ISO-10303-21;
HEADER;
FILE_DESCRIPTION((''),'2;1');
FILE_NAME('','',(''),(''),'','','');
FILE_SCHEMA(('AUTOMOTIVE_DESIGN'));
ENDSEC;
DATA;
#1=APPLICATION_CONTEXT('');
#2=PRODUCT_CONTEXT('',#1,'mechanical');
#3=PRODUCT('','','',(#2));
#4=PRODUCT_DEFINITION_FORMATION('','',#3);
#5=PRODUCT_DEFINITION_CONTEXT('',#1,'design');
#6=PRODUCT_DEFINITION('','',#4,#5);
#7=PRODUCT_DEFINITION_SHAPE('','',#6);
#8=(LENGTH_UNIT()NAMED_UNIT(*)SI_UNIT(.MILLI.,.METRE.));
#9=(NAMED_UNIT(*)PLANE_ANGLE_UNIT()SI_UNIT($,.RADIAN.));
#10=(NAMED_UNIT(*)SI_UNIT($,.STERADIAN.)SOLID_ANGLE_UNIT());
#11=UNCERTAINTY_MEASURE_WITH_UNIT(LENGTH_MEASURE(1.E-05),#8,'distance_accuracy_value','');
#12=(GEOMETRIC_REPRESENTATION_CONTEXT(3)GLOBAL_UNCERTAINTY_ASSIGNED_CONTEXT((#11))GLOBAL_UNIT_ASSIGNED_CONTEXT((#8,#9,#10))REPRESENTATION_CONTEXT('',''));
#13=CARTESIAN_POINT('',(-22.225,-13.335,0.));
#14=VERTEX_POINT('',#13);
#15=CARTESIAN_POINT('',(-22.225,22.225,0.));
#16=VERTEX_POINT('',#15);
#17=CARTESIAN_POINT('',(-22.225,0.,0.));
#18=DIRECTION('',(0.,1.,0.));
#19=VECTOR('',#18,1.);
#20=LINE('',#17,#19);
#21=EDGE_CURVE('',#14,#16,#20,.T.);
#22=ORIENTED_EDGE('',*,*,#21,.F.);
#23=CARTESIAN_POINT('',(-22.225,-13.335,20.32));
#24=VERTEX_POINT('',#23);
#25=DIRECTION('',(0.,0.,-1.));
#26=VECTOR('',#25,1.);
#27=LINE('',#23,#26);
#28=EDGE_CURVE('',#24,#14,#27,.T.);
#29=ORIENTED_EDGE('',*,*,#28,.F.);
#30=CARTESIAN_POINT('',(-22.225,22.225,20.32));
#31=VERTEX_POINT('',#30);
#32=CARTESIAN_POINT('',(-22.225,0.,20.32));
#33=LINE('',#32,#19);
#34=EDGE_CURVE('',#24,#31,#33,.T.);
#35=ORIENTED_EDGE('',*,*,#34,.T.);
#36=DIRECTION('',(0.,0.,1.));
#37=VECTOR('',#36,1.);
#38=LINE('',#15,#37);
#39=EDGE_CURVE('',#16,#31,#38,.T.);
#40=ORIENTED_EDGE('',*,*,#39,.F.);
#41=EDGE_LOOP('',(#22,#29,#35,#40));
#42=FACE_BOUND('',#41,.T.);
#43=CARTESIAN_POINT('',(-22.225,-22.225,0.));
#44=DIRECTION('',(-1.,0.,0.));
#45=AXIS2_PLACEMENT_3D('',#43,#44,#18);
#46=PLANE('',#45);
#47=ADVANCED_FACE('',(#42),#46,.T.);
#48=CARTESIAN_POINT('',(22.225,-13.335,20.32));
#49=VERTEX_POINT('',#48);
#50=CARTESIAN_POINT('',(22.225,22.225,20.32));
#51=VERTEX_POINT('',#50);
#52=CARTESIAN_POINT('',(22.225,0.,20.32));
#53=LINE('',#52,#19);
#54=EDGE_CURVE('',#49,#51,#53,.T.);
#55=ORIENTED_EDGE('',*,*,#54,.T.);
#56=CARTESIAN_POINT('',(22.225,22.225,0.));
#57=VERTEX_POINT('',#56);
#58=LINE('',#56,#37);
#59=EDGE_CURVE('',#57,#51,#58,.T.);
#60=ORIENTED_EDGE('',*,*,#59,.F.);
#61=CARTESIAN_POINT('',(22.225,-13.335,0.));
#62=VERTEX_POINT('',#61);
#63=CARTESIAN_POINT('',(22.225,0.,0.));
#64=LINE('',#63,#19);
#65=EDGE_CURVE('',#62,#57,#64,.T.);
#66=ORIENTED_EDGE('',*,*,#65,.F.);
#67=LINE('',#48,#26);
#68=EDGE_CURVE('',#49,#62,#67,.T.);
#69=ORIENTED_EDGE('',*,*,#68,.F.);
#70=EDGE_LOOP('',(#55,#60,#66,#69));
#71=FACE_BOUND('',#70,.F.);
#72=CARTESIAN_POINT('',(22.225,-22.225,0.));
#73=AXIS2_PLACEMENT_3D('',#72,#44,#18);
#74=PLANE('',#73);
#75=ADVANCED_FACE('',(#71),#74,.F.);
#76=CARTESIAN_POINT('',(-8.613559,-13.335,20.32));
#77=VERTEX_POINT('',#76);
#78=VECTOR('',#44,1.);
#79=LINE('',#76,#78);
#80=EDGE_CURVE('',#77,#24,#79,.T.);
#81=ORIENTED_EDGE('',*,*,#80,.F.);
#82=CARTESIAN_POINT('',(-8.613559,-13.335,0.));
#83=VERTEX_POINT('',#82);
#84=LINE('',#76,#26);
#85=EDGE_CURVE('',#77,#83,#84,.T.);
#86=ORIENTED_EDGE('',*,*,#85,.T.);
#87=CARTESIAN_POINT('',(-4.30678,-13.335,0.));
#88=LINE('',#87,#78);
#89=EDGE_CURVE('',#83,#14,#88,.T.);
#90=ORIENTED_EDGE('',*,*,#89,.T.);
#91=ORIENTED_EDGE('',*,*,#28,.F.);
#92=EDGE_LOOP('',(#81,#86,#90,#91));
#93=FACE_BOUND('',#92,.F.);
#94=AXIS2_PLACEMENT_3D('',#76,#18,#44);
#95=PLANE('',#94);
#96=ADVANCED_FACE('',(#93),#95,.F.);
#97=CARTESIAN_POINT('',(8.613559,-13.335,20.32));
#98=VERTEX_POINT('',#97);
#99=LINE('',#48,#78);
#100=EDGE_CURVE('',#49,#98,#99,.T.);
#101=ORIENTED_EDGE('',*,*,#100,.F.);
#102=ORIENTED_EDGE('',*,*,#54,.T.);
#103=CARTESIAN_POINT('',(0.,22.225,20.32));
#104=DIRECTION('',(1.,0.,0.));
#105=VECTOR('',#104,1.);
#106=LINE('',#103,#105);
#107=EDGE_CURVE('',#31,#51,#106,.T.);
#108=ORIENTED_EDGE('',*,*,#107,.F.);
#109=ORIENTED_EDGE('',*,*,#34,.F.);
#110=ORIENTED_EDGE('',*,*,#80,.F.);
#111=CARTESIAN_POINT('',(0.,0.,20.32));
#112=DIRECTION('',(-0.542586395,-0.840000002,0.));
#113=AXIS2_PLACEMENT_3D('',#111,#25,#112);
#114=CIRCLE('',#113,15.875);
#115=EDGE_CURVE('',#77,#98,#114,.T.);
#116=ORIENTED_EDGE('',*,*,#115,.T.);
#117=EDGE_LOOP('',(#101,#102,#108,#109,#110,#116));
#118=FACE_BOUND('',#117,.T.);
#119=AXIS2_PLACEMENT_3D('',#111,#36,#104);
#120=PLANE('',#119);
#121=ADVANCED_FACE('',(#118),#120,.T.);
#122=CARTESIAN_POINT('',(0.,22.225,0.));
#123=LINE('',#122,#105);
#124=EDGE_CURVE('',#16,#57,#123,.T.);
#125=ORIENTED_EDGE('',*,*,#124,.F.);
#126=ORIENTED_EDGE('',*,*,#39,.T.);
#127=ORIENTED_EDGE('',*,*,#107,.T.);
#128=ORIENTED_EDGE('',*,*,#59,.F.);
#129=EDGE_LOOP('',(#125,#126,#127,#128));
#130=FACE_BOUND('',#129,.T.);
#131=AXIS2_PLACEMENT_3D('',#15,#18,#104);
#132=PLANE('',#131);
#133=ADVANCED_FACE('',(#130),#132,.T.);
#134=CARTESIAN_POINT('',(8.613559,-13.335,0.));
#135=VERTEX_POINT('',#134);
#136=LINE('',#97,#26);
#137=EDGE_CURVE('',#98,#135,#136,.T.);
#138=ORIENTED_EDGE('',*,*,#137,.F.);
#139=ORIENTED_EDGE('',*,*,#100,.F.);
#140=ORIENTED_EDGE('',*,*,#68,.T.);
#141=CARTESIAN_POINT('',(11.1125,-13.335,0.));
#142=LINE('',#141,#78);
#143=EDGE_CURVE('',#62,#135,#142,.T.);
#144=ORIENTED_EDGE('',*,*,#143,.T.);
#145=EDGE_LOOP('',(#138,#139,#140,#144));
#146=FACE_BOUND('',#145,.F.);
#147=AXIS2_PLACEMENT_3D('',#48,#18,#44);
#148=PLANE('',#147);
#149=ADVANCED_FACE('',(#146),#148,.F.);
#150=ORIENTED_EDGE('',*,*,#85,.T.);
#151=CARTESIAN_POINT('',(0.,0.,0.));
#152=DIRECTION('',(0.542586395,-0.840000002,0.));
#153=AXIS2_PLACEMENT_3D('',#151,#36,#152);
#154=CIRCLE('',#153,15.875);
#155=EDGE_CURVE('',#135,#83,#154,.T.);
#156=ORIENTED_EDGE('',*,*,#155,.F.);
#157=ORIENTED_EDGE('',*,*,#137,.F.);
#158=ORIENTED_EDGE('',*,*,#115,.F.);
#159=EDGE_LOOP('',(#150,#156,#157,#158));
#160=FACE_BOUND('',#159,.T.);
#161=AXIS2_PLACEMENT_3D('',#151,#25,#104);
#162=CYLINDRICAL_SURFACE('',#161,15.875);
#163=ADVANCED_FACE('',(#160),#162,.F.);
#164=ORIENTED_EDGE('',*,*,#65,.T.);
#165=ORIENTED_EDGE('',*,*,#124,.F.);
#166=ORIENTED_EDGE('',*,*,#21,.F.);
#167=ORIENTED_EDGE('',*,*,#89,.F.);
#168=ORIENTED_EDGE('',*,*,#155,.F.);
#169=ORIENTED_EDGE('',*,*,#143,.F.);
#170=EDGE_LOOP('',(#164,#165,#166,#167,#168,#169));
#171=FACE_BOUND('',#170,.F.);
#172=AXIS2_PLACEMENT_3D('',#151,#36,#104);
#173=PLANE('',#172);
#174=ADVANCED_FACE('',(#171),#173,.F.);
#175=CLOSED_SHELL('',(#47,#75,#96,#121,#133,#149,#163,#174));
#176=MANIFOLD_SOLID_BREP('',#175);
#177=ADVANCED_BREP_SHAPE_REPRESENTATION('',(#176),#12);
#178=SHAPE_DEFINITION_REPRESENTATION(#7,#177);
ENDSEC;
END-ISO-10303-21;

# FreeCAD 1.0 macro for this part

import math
import FreeCAD as App
import Part
import Sketcher
from FreeCAD import Vector
Q = App.Units.Quantity


def add_polygon(sketch, points):
    """Adds a closed chain of lines whose ends are joined by coincident constraints."""
    first, n = sketch.GeometryCount, len(points)
    for a, b in zip(points, points[1:] + points[:1]):
        sketch.addGeometry(Part.LineSegment(App.Vector(*a, 0), App.Vector(*b, 0)), False)
    for i in range(n):
        sketch.addConstraint(Sketcher.Constraint("Coincident", first + i, 2, first + (i + 1) % n, 1))

doc = App.newDocument("Part")
body = doc.addObject("PartDesign::Body", "Body")

# Sketch on XY plane
sketch1 = body.newObject("Sketcher::SketchObject", "Sketch")
sketch1.AttachmentSupport = (doc.getObject("XY_Plane"), [""])
sketch1.MapMode = "FlatFace"
add_polygon(sketch1, [(-22, 22), (-22, -22), (22, -22), (22, 22)])  # lines 0-3
sketch1.addGeometry(Part.Circle(Vector(0, 0, 0), Vector(0, 0, 1), 16), False)  # 4
sketch1.addConstraint(Sketcher.Constraint("Vertical", 0))
sketch1.addConstraint(Sketcher.Constraint("Horizontal", 1))
sketch1.addConstraint(Sketcher.Constraint("Vertical", 2))
sketch1.addConstraint(Sketcher.Constraint("Horizontal", 3))
sketch1.addConstraint(Sketcher.Constraint("Coincident", 4, 3, -1, 1))
sketch1.addConstraint(Sketcher.Constraint("Symmetric", 0, 2, 2, 2, -1, 1))
sketch1.addConstraint(Sketcher.Constraint("Equal", 3, 0))
sketch1.addConstraint(Sketcher.Constraint("Diameter", 4, Q("1.25 in")))
sketch1.addConstraint(Sketcher.Constraint("DistanceX", 1, 1, 1, 2, Q("1.75 in")))
pad1 = body.newObject("PartDesign::Pad", "Pad")
pad1.Profile = sketch1
pad1.Length = Q("0.8 in")

# Sketch on XY plane
sketch2 = body.newObject("Sketcher::SketchObject", "Sketch001")
sketch2.AttachmentSupport = (doc.getObject("XY_Plane"), [""])
sketch2.MapMode = "FlatFace"
sketch2.AttachmentOffset = App.Placement(Vector(0, 0, 0.8 * 25.4), App.Rotation())
sketch2.addGeometry(Part.LineSegment(Vector(-22, -13, 0), Vector(-22, -22, 0)), False)
sketch2.addGeometry(Part.LineSegment(Vector(-22, -22, 0), Vector(22, -22, 0)), False)
sketch2.addGeometry(Part.LineSegment(Vector(22, -22, 0), Vector(22, -13, 0)), False)
sketch2.addGeometry(Part.LineSegment(Vector(22, -13, 0), Vector(9, -13, 0)), False)
sketch2.addGeometry(Part.ArcOfCircle(Part.Circle(Vector(0, 0, 0), Vector(0, 0, 1), 16), math.radians(-123), math.radians(-57)), False)
sketch2.addGeometry(Part.LineSegment(Vector(-9, -13, 0), Vector(-22, -13, 0)), False)
sketch2.addConstraint(Sketcher.Constraint("Coincident", 0, 2, 1, 1))
sketch2.addConstraint(Sketcher.Constraint("Coincident", 1, 2, 2, 1))
sketch2.addConstraint(Sketcher.Constraint("Coincident", 2, 2, 3, 1))
sketch2.addConstraint(Sketcher.Constraint("Coincident", 3, 2, 4, 2))
sketch2.addConstraint(Sketcher.Constraint("Coincident", 4, 1, 5, 1))
sketch2.addConstraint(Sketcher.Constraint("Coincident", 5, 2, 0, 1))
sketch2.addConstraint(Sketcher.Constraint("Vertical", 0))
sketch2.addConstraint(Sketcher.Constraint("Horizontal", 1))
sketch2.addConstraint(Sketcher.Constraint("Vertical", 2))
sketch2.addConstraint(Sketcher.Constraint("Horizontal", 3))
sketch2.addConstraint(Sketcher.Constraint("Horizontal", 5))
sketch2.addConstraint(Sketcher.Constraint("Coincident", 4, 3, -1, 1))
sketch2.addConstraint(Sketcher.Constraint("Symmetric", 2, 2, 5, 2, -2))
sketch2.addConstraint(Sketcher.Constraint("Radius", 4, Q("0.625 in")))
sketch2.addConstraint(Sketcher.Constraint("DistanceX", 1, 1, 1, 2, Q("1.75 in")))
sketch2.addConstraint(Sketcher.Constraint("DistanceY", 0, 2, 0, 1, Q("0.35 in")))
sketch2.addConstraint(Sketcher.Constraint("DistanceY", 0, 2, -1, 1, Q("0.875 in")))
pocket1 = body.newObject("PartDesign::Pocket", "Pocket")
pocket1.Profile = sketch2
pocket1.Type = "ThroughAll"

doc.recompute()
